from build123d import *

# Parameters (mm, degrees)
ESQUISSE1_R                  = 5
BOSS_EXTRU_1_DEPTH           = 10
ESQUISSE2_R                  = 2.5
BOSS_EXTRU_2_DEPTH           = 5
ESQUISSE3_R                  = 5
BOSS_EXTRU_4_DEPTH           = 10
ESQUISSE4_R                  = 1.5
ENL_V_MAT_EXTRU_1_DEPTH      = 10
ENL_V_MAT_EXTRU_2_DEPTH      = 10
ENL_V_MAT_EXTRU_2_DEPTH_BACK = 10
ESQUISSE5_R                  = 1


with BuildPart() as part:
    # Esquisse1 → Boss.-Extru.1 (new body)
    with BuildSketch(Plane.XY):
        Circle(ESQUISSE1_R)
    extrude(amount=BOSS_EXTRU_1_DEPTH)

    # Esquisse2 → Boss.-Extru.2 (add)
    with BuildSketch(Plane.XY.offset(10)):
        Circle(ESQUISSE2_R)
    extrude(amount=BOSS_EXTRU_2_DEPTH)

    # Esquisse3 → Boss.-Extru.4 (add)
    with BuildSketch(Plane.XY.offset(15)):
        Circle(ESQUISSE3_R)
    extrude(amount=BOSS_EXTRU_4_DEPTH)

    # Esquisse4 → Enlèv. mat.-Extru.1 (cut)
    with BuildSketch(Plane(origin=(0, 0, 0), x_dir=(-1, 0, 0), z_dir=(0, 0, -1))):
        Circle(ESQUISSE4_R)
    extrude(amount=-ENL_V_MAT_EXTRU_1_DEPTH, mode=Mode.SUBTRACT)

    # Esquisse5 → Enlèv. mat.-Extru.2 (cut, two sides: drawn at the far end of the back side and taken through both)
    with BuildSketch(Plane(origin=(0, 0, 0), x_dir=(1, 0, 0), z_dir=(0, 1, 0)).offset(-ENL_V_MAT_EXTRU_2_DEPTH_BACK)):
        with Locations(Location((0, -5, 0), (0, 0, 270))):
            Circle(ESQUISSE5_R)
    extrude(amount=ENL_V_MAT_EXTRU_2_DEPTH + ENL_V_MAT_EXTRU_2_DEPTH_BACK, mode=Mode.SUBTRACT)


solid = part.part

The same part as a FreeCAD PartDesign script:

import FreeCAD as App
import Part
import Sketcher
from FreeCAD import Vector

doc = App.newDocument("Part")
params = doc.addObject("Spreadsheet::Sheet", "Params")
for row, (alias, value) in enumerate([
    ("sketch1_diameter", "10 mm"),
    ("pad1_length", "10 mm"),
    ("sketch2_diameter", "5 mm"),
    ("pad2_length", "5 mm"),
    ("sketch3_diameter", "10 mm"),
    ("pad3_length", "10 mm"),
    ("sketch4_diameter", "3 mm"),
    ("pocket1_length", "10 mm"),
    ("sketch5_diameter", "2 mm"),
], start=1):
    params.set(f"A{row}", alias)
    params.set(f"B{row}", "=" + value)
    params.setAlias(f"B{row}", alias)

body = doc.addObject("PartDesign::Body", "Body")

sketch1 = doc.addObject("Sketcher::SketchObject", "Sketch")
body.addObject(sketch1)
sketch1.AttachmentSupport = (doc.XY_Plane, [""])
sketch1.MapMode = "FlatFace"
sketch1.addGeometry(Part.Circle(Vector(0, 0, 0), Vector(0, 0, 1), 5), False)
sketch1.addConstraint([
    Sketcher.Constraint("Coincident", 0, 3, -1, 1),
    Sketcher.Constraint("Diameter", 0, 10.0),
])
sketch1.setExpression("Constraints[1]", "Params.sketch1_diameter")
pad1 = doc.addObject("PartDesign::Pad", "Pad")
body.addObject(pad1)
pad1.Profile = sketch1
pad1.setExpression("Length", "Params.pad1_length")

sketch2 = doc.addObject("Sketcher::SketchObject", "Sketch001")
body.addObject(sketch2)
sketch2.AttachmentSupport = (doc.XY_Plane, [""])
sketch2.MapMode = "FlatFace"
sketch2.AttachmentOffset = App.Placement(Vector(0, 0, 10), App.Rotation())
sketch2.addGeometry(Part.Circle(Vector(0, 0, 0), Vector(0, 0, 1), 2.5), False)
sketch2.addConstraint([
    Sketcher.Constraint("Coincident", 0, 3, -1, 1),
    Sketcher.Constraint("Diameter", 0, 5.0),
])
sketch2.setExpression("Constraints[1]", "Params.sketch2_diameter")
pad2 = doc.addObject("PartDesign::Pad", "Pad001")
body.addObject(pad2)
pad2.Profile = sketch2
pad2.setExpression("Length", "Params.pad2_length")

sketch3 = doc.addObject("Sketcher::SketchObject", "Sketch002")
body.addObject(sketch3)
sketch3.AttachmentSupport = (doc.XY_Plane, [""])
sketch3.MapMode = "FlatFace"
sketch3.AttachmentOffset = App.Placement(Vector(0, 0, 15), App.Rotation())
sketch3.addGeometry(Part.Circle(Vector(0, 0, 0), Vector(0, 0, 1), 5), False)
sketch3.addConstraint([
    Sketcher.Constraint("Coincident", 0, 3, -1, 1),
    Sketcher.Constraint("Diameter", 0, 10.0),
])
sketch3.setExpression("Constraints[1]", "Params.sketch3_diameter")
pad3 = doc.addObject("PartDesign::Pad", "Pad002")
body.addObject(pad3)
pad3.Profile = sketch3
pad3.setExpression("Length", "Params.pad3_length")

sketch4 = doc.addObject("Sketcher::SketchObject", "Sketch003")
body.addObject(sketch4)
sketch4.AttachmentSupport = (doc.XY_Plane, [""])
sketch4.MapMode = "FlatFace"
sketch4.addGeometry(Part.Circle(Vector(0, 0, 0), Vector(0, 0, 1), 1.5), False)
sketch4.addConstraint([
    Sketcher.Constraint("Coincident", 0, 3, -1, 1),
    Sketcher.Constraint("Diameter", 0, 3.0),
])
sketch4.setExpression("Constraints[1]", "Params.sketch4_diameter")
pocket1 = doc.addObject("PartDesign::Pocket", "Pocket")
body.addObject(pocket1)
pocket1.Profile = sketch4
pocket1.setExpression("Length", "Params.pocket1_length")
pocket1.Reversed = True

sketch5 = doc.addObject("Sketcher::SketchObject", "Sketch004")
body.addObject(sketch5)
sketch5.AttachmentSupport = (doc.XZ_Plane, [""])
sketch5.MapMode = "FlatFace"
sketch5.addGeometry(Part.Circle(Vector(0, 5, 0), Vector(0, 0, 1), 1), False)
sketch5.addConstraint([
    Sketcher.Constraint("PointOnObject", 0, 3, -2),
    Sketcher.Constraint("Diameter", 0, 2.0),
    Sketcher.Constraint("DistanceY", -1, 1, 0, 3, 5.0),
])
sketch5.setExpression("Constraints[1]", "Params.sketch5_diameter")
pocket2 = doc.addObject("PartDesign::Pocket", "Pocket001")
body.addObject(pocket2)
pocket2.Profile = sketch5
pocket2.Type = "ThroughAll"
pocket2.Midplane = True

doc.recompute()
